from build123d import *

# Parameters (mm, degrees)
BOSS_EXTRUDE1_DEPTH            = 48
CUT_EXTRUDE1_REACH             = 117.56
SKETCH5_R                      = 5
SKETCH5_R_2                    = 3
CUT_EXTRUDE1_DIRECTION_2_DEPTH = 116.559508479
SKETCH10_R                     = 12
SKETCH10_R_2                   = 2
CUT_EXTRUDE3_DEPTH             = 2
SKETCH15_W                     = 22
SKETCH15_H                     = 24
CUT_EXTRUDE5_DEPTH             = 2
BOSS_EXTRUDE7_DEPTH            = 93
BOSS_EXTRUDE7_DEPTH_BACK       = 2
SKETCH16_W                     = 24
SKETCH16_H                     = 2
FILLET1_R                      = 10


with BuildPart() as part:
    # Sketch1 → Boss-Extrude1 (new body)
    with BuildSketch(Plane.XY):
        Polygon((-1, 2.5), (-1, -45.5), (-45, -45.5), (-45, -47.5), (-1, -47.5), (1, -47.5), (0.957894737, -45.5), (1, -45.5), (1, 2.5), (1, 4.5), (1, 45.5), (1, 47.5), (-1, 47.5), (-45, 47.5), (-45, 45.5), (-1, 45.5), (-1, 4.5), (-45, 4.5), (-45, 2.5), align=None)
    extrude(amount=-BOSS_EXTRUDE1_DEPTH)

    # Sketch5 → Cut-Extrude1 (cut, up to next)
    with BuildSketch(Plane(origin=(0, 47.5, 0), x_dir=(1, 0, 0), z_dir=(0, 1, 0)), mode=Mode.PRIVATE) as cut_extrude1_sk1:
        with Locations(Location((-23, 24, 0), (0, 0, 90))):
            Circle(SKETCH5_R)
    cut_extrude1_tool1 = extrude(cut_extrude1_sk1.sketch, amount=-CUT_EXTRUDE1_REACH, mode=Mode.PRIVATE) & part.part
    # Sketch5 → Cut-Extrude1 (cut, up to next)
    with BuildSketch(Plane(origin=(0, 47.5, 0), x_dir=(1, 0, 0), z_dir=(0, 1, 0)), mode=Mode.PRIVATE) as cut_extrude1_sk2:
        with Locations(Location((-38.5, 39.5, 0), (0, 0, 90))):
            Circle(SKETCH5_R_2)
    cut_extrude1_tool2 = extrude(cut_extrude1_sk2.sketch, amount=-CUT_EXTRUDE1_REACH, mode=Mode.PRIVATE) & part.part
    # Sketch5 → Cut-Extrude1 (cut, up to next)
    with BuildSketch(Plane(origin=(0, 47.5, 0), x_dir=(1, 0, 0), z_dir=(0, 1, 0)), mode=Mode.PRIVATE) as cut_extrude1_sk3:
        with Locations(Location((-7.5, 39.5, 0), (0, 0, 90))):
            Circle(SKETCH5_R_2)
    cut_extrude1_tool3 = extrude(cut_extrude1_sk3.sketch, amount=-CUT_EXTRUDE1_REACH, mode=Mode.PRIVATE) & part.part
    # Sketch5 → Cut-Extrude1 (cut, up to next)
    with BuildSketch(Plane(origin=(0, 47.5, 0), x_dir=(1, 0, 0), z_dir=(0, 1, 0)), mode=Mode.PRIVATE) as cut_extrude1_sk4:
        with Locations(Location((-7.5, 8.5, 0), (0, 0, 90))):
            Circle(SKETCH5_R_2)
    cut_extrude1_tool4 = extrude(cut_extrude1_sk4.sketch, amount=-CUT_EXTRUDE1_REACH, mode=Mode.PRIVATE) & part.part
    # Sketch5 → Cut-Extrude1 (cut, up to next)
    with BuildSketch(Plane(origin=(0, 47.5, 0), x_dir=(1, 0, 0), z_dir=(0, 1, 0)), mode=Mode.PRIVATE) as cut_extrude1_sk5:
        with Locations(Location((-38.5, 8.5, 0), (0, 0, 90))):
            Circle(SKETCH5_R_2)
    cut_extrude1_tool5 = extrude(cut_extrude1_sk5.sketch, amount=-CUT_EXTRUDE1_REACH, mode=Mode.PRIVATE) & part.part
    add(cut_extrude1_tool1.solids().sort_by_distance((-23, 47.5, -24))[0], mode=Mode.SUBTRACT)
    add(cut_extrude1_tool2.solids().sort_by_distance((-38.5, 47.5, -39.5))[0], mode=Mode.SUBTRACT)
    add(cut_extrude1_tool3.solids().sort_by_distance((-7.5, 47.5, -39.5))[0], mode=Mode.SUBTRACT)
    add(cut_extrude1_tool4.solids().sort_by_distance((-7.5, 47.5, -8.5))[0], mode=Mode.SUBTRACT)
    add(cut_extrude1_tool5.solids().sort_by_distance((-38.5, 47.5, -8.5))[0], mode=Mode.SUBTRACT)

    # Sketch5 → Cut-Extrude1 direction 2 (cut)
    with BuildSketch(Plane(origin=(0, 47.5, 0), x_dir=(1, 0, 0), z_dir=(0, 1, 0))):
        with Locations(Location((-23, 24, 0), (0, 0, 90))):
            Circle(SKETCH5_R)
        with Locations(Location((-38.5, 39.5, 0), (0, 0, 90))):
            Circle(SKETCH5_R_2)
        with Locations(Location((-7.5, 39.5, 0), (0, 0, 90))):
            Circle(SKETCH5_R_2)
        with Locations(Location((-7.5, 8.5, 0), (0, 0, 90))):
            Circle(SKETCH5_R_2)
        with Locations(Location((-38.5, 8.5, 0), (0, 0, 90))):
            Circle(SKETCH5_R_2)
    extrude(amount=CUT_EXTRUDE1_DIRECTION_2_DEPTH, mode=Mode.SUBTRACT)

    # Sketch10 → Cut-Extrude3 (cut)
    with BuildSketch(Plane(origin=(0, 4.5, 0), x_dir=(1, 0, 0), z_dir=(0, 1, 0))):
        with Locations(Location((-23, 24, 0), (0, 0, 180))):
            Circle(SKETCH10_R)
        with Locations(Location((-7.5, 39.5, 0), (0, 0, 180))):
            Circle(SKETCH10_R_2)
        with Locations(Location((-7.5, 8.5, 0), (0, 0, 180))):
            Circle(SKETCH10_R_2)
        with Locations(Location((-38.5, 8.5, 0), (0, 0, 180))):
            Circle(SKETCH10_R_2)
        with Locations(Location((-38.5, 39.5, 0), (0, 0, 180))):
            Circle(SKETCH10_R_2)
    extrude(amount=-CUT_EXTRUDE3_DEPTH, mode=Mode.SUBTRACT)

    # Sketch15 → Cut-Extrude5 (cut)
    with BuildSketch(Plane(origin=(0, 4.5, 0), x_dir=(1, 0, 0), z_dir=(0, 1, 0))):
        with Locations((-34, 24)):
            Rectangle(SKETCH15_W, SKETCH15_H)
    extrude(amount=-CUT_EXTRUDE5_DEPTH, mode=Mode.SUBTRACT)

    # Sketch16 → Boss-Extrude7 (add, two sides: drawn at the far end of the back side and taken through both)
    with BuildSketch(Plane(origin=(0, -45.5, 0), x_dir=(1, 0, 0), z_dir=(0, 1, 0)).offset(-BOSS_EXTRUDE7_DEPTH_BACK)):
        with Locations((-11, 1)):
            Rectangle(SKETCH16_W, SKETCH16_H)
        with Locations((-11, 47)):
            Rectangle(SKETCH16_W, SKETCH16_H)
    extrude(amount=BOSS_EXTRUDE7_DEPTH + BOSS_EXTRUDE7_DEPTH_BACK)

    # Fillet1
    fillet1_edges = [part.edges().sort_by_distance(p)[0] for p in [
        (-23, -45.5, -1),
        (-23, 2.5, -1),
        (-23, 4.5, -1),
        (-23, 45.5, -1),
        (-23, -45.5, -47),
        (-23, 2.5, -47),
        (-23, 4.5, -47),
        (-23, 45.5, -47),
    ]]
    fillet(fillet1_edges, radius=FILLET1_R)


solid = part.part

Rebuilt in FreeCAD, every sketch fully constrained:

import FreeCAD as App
import Part
import Sketcher


def edges_at(feature, points):
    """Names of the edges that pass closest to the given points."""
    edges = feature.Shape.Edges
    near = lambda p: min(range(len(edges)), key=lambda i: edges[i].distToShape(Part.Vertex(*p))[0])
    return sorted({f"Edge{near(p) + 1}" for p in points})

doc = App.newDocument("Part")
body = doc.addObject("PartDesign::Body", "Body")

sketch1 = body.newObject("Sketcher::SketchObject", "Sketch")
sketch1.AttachmentSupport = (doc.getObject("XY_Plane"), [""])
sketch1.MapMode = "FlatFace"
sketch1.addGeometry([
    Part.LineSegment(App.Vector(-1, 2.5, 0), App.Vector(-1, -45.5, 0)),
    Part.LineSegment(App.Vector(-1, -45.5, 0), App.Vector(-45, -45.5, 0)),
    Part.LineSegment(App.Vector(-45, -45.5, 0), App.Vector(-45, -47.5, 0)),
    Part.LineSegment(App.Vector(-45, -47.5, 0), App.Vector(1, -47.5, 0)),
    Part.LineSegment(App.Vector(1, -47.5, 0), App.Vector(0.957895, -45.5, 0)),
    Part.LineSegment(App.Vector(0.957895, -45.5, 0), App.Vector(1, -45.5, 0)),
    Part.LineSegment(App.Vector(1, -45.5, 0), App.Vector(1, 47.5, 0)),
    Part.LineSegment(App.Vector(1, 47.5, 0), App.Vector(-45, 47.5, 0)),
    Part.LineSegment(App.Vector(-45, 47.5, 0), App.Vector(-45, 45.5, 0)),
    Part.LineSegment(App.Vector(-45, 45.5, 0), App.Vector(-1, 45.5, 0)),
    Part.LineSegment(App.Vector(-1, 45.5, 0), App.Vector(-1, 4.5, 0)),
    Part.LineSegment(App.Vector(-1, 4.5, 0), App.Vector(-45, 4.5, 0)),
    Part.LineSegment(App.Vector(-45, 4.5, 0), App.Vector(-45, 2.5, 0)),
    Part.LineSegment(App.Vector(-45, 2.5, 0), App.Vector(-1, 2.5, 0)),
], False)
sketch1.addConstraint([
    Sketcher.Constraint("Coincident", 0, 2, 1, 1),
    Sketcher.Constraint("Coincident", 1, 2, 2, 1),
    Sketcher.Constraint("Coincident", 2, 2, 3, 1),
    Sketcher.Constraint("Coincident", 3, 2, 4, 1),
    Sketcher.Constraint("Coincident", 4, 2, 5, 1),
    Sketcher.Constraint("Coincident", 5, 2, 6, 1),
    Sketcher.Constraint("Coincident", 6, 2, 7, 1),
    Sketcher.Constraint("Coincident", 7, 2, 8, 1),
    Sketcher.Constraint("Coincident", 8, 2, 9, 1),
    Sketcher.Constraint("Coincident", 9, 2, 10, 1),
    Sketcher.Constraint("Coincident", 10, 2, 11, 1),
    Sketcher.Constraint("Coincident", 11, 2, 12, 1),
    Sketcher.Constraint("Coincident", 12, 2, 13, 1),
    Sketcher.Constraint("Coincident", 13, 2, 0, 1),
    Sketcher.Constraint("Vertical", 0),
    Sketcher.Constraint("Horizontal", 1),
    Sketcher.Constraint("Vertical", 2),
    Sketcher.Constraint("Horizontal", 3),
    Sketcher.Constraint("Horizontal", 5),
    Sketcher.Constraint("Vertical", 6),
    Sketcher.Constraint("Horizontal", 7),
    Sketcher.Constraint("Vertical", 8),
    Sketcher.Constraint("Horizontal", 9),
    Sketcher.Constraint("Vertical", 10),
    Sketcher.Constraint("Horizontal", 11),
    Sketcher.Constraint("Vertical", 12),
    Sketcher.Constraint("Horizontal", 13),
    Sketcher.Constraint("Symmetric", 5, 2, 9, 2, -1, 1),
    Sketcher.Constraint("Symmetric", 0, 2, 5, 2, -2),
    Sketcher.Constraint("Symmetric", 3, 2, 6, 2, -1),
    Sketcher.Constraint("Vertical", 2, 2, 7, 2),
    Sketcher.Constraint("Vertical", 8, 2, 11, 2),
    Sketcher.Constraint("Equal", 8, 12),
    Sketcher.Constraint("DistanceX", 1, 2, 1, 1, 44.0),
    Sketcher.Constraint("DistanceX", 3, 1, 3, 2, 46.0),
    Sketcher.Constraint("DistanceY", 0, 2, 0, 1, 48.0),
    Sketcher.Constraint("DistanceY", 2, 2, 2, 1, 2.0),
    Sketcher.Constraint("DistanceY", 6, 1, 6, 2, 93.0),
    Sketcher.Constraint("DistanceX", 5, 1, 5, 2, 0.042105),
])
pad1 = body.newObject("PartDesign::Pad", "Pad")
pad1.Profile = sketch1
pad1.Length = 48
pad1.Reversed = True

sketch2 = body.newObject("Sketcher::SketchObject", "Sketch001")
sketch2.AttachmentSupport = (doc.getObject("XZ_Plane"), [""])
sketch2.MapMode = "FlatFace"
sketch2.AttachmentOffset = App.Placement(App.Vector(0, 0, -47.5), App.Rotation())
sketch2.addGeometry(Part.Circle(App.Vector(-23, -24, 0), App.Vector(0, 0, 1), 5), False)
sketch2.addConstraint([
    Sketcher.Constraint("Diameter", 0, 10.0),
    Sketcher.Constraint("DistanceX", 0, 3, -1, 1, 23.0),
    Sketcher.Constraint("DistanceY", 0, 3, -1, 1, 24.0),
])
pocket1 = body.newObject("PartDesign::Pocket", "Pocket")
pocket1.Profile = sketch2
pocket1.Type = "UpToFirst"
pocket1.Reversed = True

sketch3 = body.newObject("Sketcher::SketchObject", "Sketch002")
sketch3.AttachmentSupport = (doc.getObject("XZ_Plane"), [""])
sketch3.MapMode = "FlatFace"
sketch3.AttachmentOffset = App.Placement(App.Vector(0, 0, -47.5), App.Rotation())
sketch3.addGeometry(Part.Circle(App.Vector(-38.5, -39.5, 0), App.Vector(0, 0, 1), 3), False)
sketch3.addConstraint([
    Sketcher.Constraint("Diameter", 0, 6.0),
    Sketcher.Constraint("DistanceX", 0, 3, -1, 1, 38.5),
    Sketcher.Constraint("DistanceY", 0, 3, -1, 1, 39.5),
])
pocket2 = body.newObject("PartDesign::Pocket", "Pocket001")
pocket2.Profile = sketch3
pocket2.Type = "UpToFirst"
pocket2.Reversed = True

sketch4 = body.newObject("Sketcher::SketchObject", "Sketch003")
sketch4.AttachmentSupport = (doc.getObject("XZ_Plane"), [""])
sketch4.MapMode = "FlatFace"
sketch4.AttachmentOffset = App.Placement(App.Vector(0, 0, -47.5), App.Rotation())
sketch4.addGeometry(Part.Circle(App.Vector(-7.5, -39.5, 0), App.Vector(0, 0, 1), 3), False)
sketch4.addConstraint([
    Sketcher.Constraint("Diameter", 0, 6.0),
    Sketcher.Constraint("DistanceX", 0, 3, -1, 1, 7.5),
    Sketcher.Constraint("DistanceY", 0, 3, -1, 1, 39.5),
])
pocket3 = body.newObject("PartDesign::Pocket", "Pocket002")
pocket3.Profile = sketch4
pocket3.Type = "UpToFirst"
pocket3.Reversed = True

sketch5 = body.newObject("Sketcher::SketchObject", "Sketch004")
sketch5.AttachmentSupport = (doc.getObject("XZ_Plane"), [""])
sketch5.MapMode = "FlatFace"
sketch5.AttachmentOffset = App.Placement(App.Vector(0, 0, -47.5), App.Rotation())
sketch5.addGeometry(Part.Circle(App.Vector(-7.5, -8.5, 0), App.Vector(0, 0, 1), 3), False)
sketch5.addConstraint([
    Sketcher.Constraint("Diameter", 0, 6.0),
    Sketcher.Constraint("DistanceX", 0, 3, -1, 1, 7.5),
    Sketcher.Constraint("DistanceY", 0, 3, -1, 1, 8.5),
])
pocket4 = body.newObject("PartDesign::Pocket", "Pocket003")
pocket4.Profile = sketch5
pocket4.Type = "UpToFirst"
pocket4.Reversed = True

sketch6 = body.newObject("Sketcher::SketchObject", "Sketch005")
sketch6.AttachmentSupport = (doc.getObject("XZ_Plane"), [""])
sketch6.MapMode = "FlatFace"
sketch6.AttachmentOffset = App.Placement(App.Vector(0, 0, -47.5), App.Rotation())
sketch6.addGeometry(Part.Circle(App.Vector(-38.5, -8.5, 0), App.Vector(0, 0, 1), 3), False)
sketch6.addConstraint([
    Sketcher.Constraint("Diameter", 0, 6.0),
    Sketcher.Constraint("DistanceX", 0, 3, -1, 1, 38.5),
    Sketcher.Constraint("DistanceY", 0, 3, -1, 1, 8.5),
])
pocket5 = body.newObject("PartDesign::Pocket", "Pocket004")
pocket5.Profile = sketch6
pocket5.Type = "UpToFirst"
pocket5.Reversed = True

sketch7 = body.newObject("Sketcher::SketchObject", "Sketch006")
sketch7.AttachmentSupport = (doc.getObject("XZ_Plane"), [""])
sketch7.MapMode = "FlatFace"
sketch7.AttachmentOffset = App.Placement(App.Vector(0, 0, -47.5), App.Rotation())
sketch7.addGeometry([
    Part.Circle(App.Vector(-23, -24, 0), App.Vector(0, 0, 1), 5),
    Part.Circle(App.Vector(-38.5, -39.5, 0), App.Vector(0, 0, 1), 3),
    Part.Circle(App.Vector(-7.5, -39.5, 0), App.Vector(0, 0, 1), 3),
    Part.Circle(App.Vector(-7.5, -8.5, 0), App.Vector(0, 0, 1), 3),
    Part.Circle(App.Vector(-38.5, -8.5, 0), App.Vector(0, 0, 1), 3),
], False)
sketch7.addConstraint([
    Sketcher.Constraint("Equal", 1, 2),
    Sketcher.Constraint("Equal", 2, 3),
    Sketcher.Constraint("Equal", 3, 4),
    Sketcher.Constraint("Horizontal", 1, 3, 2, 3),
    Sketcher.Constraint("Horizontal", 3, 3, 4, 3),
    Sketcher.Constraint("Vertical", 2, 3, 3, 3),
    Sketcher.Constraint("Vertical", 1, 3, 4, 3),
    Sketcher.Constraint("Diameter", 0, 10.0),
    Sketcher.Constraint("Diameter", 1, 6.0),
    Sketcher.Constraint("DistanceX", 0, 3, -1, 1, 23.0),
    Sketcher.Constraint("DistanceY", 0, 3, -1, 1, 24.0),
    Sketcher.Constraint("DistanceX", 1, 3, 2, 3, 31.0),
    Sketcher.Constraint("DistanceY", 2, 3, 3, 3, 31.0),
    Sketcher.Constraint("DistanceX", 1, 3, -1, 1, 38.5),
    Sketcher.Constraint("DistanceY", 1, 3, -1, 1, 39.5),
])
pocket6 = body.newObject("PartDesign::Pocket", "Pocket005")
pocket6.Profile = sketch7
pocket6.Length = 116.559508

sketch8 = body.newObject("Sketcher::SketchObject", "Sketch007")
sketch8.AttachmentSupport = (doc.getObject("XZ_Plane"), [""])
sketch8.MapMode = "FlatFace"
sketch8.AttachmentOffset = App.Placement(App.Vector(0, 0, -4.5), App.Rotation())
sketch8.addGeometry([
    Part.Circle(App.Vector(-23, -24, 0), App.Vector(0, 0, 1), 12),
    Part.Circle(App.Vector(-7.5, -39.5, 0), App.Vector(0, 0, 1), 2),
    Part.Circle(App.Vector(-7.5, -8.5, 0), App.Vector(0, 0, 1), 2),
    Part.Circle(App.Vector(-38.5, -8.5, 0), App.Vector(0, 0, 1), 2),
    Part.Circle(App.Vector(-38.5, -39.5, 0), App.Vector(0, 0, 1), 2),
], False)
sketch8.addConstraint([
    Sketcher.Constraint("Equal", 1, 2),
    Sketcher.Constraint("Equal", 2, 3),
    Sketcher.Constraint("Equal", 3, 4),
    Sketcher.Constraint("Horizontal", 2, 3, 3, 3),
    Sketcher.Constraint("Horizontal", 1, 3, 4, 3),
    Sketcher.Constraint("Vertical", 1, 3, 2, 3),
    Sketcher.Constraint("Vertical", 3, 3, 4, 3),
    Sketcher.Constraint("Diameter", 0, 24.0),
    Sketcher.Constraint("Diameter", 1, 4.0),
    Sketcher.Constraint("DistanceX", 0, 3, -1, 1, 23.0),
    Sketcher.Constraint("DistanceY", 0, 3, -1, 1, 24.0),
    Sketcher.Constraint("DistanceY", 1, 3, 2, 3, 31.0),
    Sketcher.Constraint("DistanceX", 3, 3, 2, 3, 31.0),
    Sketcher.Constraint("DistanceX", 1, 3, -1, 1, 7.5),
    Sketcher.Constraint("DistanceY", 1, 3, -1, 1, 39.5),
])
pocket7 = body.newObject("PartDesign::Pocket", "Pocket006")
pocket7.Profile = sketch8
pocket7.Length = 2
pocket7.Reversed = True

sketch9 = body.newObject("Sketcher::SketchObject", "Sketch008")
sketch9.AttachmentSupport = (doc.getObject("XZ_Plane"), [""])
sketch9.MapMode = "FlatFace"
sketch9.AttachmentOffset = App.Placement(App.Vector(0, 0, -4.5), App.Rotation())
sketch9.addGeometry([
    Part.LineSegment(App.Vector(-45, -36, 0), App.Vector(-45, -12, 0)),
    Part.LineSegment(App.Vector(-45, -12, 0), App.Vector(-23, -12, 0)),
    Part.LineSegment(App.Vector(-23, -12, 0), App.Vector(-23, -36, 0)),
    Part.LineSegment(App.Vector(-23, -36, 0), App.Vector(-45, -36, 0)),
], False)
sketch9.addConstraint([
    Sketcher.Constraint("Coincident", 0, 2, 1, 1),
    Sketcher.Constraint("Coincident", 1, 2, 2, 1),
    Sketcher.Constraint("Coincident", 2, 2, 3, 1),
    Sketcher.Constraint("Coincident", 3, 2, 0, 1),
    Sketcher.Constraint("Vertical", 0),
    Sketcher.Constraint("Horizontal", 1),
    Sketcher.Constraint("Vertical", 2),
    Sketcher.Constraint("Horizontal", 3),
    Sketcher.Constraint("DistanceX", 1, 1, 1, 2, 22.0),
    Sketcher.Constraint("DistanceY", 0, 1, 0, 2, 24.0),
    Sketcher.Constraint("DistanceX", 0, 2, -1, 1, 45.0),
    Sketcher.Constraint("DistanceY", 0, 2, -1, 1, 12.0),
])
pocket8 = body.newObject("PartDesign::Pocket", "Pocket007")
pocket8.Profile = sketch9
pocket8.Length = 2
pocket8.Reversed = True

sketch10 = body.newObject("Sketcher::SketchObject", "Sketch009")
sketch10.AttachmentSupport = (doc.getObject("XZ_Plane"), [""])
sketch10.MapMode = "FlatFace"
sketch10.AttachmentOffset = App.Placement(App.Vector(0, 0, 45.5), App.Rotation())
sketch10.addGeometry([
    Part.LineSegment(App.Vector(-23, -2, 0), App.Vector(-23, 0, 0)),
    Part.LineSegment(App.Vector(-23, 0, 0), App.Vector(1, 0, 0)),
    Part.LineSegment(App.Vector(1, 0, 0), App.Vector(1, -2, 0)),
    Part.LineSegment(App.Vector(1, -2, 0), App.Vector(-23, -2, 0)),
    Part.LineSegment(App.Vector(-23, -48, 0), App.Vector(-23, -46, 0)),
    Part.LineSegment(App.Vector(-23, -46, 0), App.Vector(1, -46, 0)),
    Part.LineSegment(App.Vector(1, -46, 0), App.Vector(1, -48, 0)),
    Part.LineSegment(App.Vector(1, -48, 0), App.Vector(-23, -48, 0)),
], False)
sketch10.addConstraint([
    Sketcher.Constraint("Coincident", 0, 2, 1, 1),
    Sketcher.Constraint("Coincident", 1, 2, 2, 1),
    Sketcher.Constraint("Coincident", 2, 2, 3, 1),
    Sketcher.Constraint("Coincident", 3, 2, 0, 1),
    Sketcher.Constraint("Coincident", 4, 2, 5, 1),
    Sketcher.Constraint("Coincident", 5, 2, 6, 1),
    Sketcher.Constraint("Coincident", 6, 2, 7, 1),
    Sketcher.Constraint("Coincident", 7, 2, 4, 1),
    Sketcher.Constraint("Vertical", 0),
    Sketcher.Constraint("Horizontal", 1),
    Sketcher.Constraint("Vertical", 2),
    Sketcher.Constraint("Horizontal", 3),
    Sketcher.Constraint("Vertical", 4),
    Sketcher.Constraint("Horizontal", 5),
    Sketcher.Constraint("Vertical", 6),
    Sketcher.Constraint("Horizontal", 7),
    Sketcher.Constraint("PointOnObject", 0, 2, -1),
    Sketcher.Constraint("Vertical", 3, 2, 4, 2),
    Sketcher.Constraint("Vertical", 2, 2, 5, 2),
    Sketcher.Constraint("Equal", 2, 4),
    Sketcher.Constraint("DistanceX", 1, 1, 1, 2, 24.0),
    Sketcher.Constraint("DistanceY", 0, 1, 0, 2, 2.0),
    Sketcher.Constraint("DistanceX", 0, 2, -1, 1, 23.0),
    Sketcher.Constraint("DistanceY", 4, 2, -1, 1, 46.0),
])
pad2 = body.newObject("PartDesign::Pad", "Pad001")
pad2.Profile = sketch10
pad2.Type = "TwoLengths"
pad2.Length = 93
pad2.Length2 = 2
pad2.Reversed = True
doc.recompute()

fillet = body.newObject("PartDesign::Fillet", "Fillet")
fillet.Base = (pad2, edges_at(pad2, [
    (-23, -45.5, -1),
    (-23, 2.5, -1),
    (-23, 4.5, -1),
    (-23, 45.5, -1),
    (-23, -45.5, -47),
    (-23, 2.5, -47),
    (-23, 4.5, -47),
    (-23, 45.5, -47),
]))
fillet.Radius = 10

doc.recompute()
